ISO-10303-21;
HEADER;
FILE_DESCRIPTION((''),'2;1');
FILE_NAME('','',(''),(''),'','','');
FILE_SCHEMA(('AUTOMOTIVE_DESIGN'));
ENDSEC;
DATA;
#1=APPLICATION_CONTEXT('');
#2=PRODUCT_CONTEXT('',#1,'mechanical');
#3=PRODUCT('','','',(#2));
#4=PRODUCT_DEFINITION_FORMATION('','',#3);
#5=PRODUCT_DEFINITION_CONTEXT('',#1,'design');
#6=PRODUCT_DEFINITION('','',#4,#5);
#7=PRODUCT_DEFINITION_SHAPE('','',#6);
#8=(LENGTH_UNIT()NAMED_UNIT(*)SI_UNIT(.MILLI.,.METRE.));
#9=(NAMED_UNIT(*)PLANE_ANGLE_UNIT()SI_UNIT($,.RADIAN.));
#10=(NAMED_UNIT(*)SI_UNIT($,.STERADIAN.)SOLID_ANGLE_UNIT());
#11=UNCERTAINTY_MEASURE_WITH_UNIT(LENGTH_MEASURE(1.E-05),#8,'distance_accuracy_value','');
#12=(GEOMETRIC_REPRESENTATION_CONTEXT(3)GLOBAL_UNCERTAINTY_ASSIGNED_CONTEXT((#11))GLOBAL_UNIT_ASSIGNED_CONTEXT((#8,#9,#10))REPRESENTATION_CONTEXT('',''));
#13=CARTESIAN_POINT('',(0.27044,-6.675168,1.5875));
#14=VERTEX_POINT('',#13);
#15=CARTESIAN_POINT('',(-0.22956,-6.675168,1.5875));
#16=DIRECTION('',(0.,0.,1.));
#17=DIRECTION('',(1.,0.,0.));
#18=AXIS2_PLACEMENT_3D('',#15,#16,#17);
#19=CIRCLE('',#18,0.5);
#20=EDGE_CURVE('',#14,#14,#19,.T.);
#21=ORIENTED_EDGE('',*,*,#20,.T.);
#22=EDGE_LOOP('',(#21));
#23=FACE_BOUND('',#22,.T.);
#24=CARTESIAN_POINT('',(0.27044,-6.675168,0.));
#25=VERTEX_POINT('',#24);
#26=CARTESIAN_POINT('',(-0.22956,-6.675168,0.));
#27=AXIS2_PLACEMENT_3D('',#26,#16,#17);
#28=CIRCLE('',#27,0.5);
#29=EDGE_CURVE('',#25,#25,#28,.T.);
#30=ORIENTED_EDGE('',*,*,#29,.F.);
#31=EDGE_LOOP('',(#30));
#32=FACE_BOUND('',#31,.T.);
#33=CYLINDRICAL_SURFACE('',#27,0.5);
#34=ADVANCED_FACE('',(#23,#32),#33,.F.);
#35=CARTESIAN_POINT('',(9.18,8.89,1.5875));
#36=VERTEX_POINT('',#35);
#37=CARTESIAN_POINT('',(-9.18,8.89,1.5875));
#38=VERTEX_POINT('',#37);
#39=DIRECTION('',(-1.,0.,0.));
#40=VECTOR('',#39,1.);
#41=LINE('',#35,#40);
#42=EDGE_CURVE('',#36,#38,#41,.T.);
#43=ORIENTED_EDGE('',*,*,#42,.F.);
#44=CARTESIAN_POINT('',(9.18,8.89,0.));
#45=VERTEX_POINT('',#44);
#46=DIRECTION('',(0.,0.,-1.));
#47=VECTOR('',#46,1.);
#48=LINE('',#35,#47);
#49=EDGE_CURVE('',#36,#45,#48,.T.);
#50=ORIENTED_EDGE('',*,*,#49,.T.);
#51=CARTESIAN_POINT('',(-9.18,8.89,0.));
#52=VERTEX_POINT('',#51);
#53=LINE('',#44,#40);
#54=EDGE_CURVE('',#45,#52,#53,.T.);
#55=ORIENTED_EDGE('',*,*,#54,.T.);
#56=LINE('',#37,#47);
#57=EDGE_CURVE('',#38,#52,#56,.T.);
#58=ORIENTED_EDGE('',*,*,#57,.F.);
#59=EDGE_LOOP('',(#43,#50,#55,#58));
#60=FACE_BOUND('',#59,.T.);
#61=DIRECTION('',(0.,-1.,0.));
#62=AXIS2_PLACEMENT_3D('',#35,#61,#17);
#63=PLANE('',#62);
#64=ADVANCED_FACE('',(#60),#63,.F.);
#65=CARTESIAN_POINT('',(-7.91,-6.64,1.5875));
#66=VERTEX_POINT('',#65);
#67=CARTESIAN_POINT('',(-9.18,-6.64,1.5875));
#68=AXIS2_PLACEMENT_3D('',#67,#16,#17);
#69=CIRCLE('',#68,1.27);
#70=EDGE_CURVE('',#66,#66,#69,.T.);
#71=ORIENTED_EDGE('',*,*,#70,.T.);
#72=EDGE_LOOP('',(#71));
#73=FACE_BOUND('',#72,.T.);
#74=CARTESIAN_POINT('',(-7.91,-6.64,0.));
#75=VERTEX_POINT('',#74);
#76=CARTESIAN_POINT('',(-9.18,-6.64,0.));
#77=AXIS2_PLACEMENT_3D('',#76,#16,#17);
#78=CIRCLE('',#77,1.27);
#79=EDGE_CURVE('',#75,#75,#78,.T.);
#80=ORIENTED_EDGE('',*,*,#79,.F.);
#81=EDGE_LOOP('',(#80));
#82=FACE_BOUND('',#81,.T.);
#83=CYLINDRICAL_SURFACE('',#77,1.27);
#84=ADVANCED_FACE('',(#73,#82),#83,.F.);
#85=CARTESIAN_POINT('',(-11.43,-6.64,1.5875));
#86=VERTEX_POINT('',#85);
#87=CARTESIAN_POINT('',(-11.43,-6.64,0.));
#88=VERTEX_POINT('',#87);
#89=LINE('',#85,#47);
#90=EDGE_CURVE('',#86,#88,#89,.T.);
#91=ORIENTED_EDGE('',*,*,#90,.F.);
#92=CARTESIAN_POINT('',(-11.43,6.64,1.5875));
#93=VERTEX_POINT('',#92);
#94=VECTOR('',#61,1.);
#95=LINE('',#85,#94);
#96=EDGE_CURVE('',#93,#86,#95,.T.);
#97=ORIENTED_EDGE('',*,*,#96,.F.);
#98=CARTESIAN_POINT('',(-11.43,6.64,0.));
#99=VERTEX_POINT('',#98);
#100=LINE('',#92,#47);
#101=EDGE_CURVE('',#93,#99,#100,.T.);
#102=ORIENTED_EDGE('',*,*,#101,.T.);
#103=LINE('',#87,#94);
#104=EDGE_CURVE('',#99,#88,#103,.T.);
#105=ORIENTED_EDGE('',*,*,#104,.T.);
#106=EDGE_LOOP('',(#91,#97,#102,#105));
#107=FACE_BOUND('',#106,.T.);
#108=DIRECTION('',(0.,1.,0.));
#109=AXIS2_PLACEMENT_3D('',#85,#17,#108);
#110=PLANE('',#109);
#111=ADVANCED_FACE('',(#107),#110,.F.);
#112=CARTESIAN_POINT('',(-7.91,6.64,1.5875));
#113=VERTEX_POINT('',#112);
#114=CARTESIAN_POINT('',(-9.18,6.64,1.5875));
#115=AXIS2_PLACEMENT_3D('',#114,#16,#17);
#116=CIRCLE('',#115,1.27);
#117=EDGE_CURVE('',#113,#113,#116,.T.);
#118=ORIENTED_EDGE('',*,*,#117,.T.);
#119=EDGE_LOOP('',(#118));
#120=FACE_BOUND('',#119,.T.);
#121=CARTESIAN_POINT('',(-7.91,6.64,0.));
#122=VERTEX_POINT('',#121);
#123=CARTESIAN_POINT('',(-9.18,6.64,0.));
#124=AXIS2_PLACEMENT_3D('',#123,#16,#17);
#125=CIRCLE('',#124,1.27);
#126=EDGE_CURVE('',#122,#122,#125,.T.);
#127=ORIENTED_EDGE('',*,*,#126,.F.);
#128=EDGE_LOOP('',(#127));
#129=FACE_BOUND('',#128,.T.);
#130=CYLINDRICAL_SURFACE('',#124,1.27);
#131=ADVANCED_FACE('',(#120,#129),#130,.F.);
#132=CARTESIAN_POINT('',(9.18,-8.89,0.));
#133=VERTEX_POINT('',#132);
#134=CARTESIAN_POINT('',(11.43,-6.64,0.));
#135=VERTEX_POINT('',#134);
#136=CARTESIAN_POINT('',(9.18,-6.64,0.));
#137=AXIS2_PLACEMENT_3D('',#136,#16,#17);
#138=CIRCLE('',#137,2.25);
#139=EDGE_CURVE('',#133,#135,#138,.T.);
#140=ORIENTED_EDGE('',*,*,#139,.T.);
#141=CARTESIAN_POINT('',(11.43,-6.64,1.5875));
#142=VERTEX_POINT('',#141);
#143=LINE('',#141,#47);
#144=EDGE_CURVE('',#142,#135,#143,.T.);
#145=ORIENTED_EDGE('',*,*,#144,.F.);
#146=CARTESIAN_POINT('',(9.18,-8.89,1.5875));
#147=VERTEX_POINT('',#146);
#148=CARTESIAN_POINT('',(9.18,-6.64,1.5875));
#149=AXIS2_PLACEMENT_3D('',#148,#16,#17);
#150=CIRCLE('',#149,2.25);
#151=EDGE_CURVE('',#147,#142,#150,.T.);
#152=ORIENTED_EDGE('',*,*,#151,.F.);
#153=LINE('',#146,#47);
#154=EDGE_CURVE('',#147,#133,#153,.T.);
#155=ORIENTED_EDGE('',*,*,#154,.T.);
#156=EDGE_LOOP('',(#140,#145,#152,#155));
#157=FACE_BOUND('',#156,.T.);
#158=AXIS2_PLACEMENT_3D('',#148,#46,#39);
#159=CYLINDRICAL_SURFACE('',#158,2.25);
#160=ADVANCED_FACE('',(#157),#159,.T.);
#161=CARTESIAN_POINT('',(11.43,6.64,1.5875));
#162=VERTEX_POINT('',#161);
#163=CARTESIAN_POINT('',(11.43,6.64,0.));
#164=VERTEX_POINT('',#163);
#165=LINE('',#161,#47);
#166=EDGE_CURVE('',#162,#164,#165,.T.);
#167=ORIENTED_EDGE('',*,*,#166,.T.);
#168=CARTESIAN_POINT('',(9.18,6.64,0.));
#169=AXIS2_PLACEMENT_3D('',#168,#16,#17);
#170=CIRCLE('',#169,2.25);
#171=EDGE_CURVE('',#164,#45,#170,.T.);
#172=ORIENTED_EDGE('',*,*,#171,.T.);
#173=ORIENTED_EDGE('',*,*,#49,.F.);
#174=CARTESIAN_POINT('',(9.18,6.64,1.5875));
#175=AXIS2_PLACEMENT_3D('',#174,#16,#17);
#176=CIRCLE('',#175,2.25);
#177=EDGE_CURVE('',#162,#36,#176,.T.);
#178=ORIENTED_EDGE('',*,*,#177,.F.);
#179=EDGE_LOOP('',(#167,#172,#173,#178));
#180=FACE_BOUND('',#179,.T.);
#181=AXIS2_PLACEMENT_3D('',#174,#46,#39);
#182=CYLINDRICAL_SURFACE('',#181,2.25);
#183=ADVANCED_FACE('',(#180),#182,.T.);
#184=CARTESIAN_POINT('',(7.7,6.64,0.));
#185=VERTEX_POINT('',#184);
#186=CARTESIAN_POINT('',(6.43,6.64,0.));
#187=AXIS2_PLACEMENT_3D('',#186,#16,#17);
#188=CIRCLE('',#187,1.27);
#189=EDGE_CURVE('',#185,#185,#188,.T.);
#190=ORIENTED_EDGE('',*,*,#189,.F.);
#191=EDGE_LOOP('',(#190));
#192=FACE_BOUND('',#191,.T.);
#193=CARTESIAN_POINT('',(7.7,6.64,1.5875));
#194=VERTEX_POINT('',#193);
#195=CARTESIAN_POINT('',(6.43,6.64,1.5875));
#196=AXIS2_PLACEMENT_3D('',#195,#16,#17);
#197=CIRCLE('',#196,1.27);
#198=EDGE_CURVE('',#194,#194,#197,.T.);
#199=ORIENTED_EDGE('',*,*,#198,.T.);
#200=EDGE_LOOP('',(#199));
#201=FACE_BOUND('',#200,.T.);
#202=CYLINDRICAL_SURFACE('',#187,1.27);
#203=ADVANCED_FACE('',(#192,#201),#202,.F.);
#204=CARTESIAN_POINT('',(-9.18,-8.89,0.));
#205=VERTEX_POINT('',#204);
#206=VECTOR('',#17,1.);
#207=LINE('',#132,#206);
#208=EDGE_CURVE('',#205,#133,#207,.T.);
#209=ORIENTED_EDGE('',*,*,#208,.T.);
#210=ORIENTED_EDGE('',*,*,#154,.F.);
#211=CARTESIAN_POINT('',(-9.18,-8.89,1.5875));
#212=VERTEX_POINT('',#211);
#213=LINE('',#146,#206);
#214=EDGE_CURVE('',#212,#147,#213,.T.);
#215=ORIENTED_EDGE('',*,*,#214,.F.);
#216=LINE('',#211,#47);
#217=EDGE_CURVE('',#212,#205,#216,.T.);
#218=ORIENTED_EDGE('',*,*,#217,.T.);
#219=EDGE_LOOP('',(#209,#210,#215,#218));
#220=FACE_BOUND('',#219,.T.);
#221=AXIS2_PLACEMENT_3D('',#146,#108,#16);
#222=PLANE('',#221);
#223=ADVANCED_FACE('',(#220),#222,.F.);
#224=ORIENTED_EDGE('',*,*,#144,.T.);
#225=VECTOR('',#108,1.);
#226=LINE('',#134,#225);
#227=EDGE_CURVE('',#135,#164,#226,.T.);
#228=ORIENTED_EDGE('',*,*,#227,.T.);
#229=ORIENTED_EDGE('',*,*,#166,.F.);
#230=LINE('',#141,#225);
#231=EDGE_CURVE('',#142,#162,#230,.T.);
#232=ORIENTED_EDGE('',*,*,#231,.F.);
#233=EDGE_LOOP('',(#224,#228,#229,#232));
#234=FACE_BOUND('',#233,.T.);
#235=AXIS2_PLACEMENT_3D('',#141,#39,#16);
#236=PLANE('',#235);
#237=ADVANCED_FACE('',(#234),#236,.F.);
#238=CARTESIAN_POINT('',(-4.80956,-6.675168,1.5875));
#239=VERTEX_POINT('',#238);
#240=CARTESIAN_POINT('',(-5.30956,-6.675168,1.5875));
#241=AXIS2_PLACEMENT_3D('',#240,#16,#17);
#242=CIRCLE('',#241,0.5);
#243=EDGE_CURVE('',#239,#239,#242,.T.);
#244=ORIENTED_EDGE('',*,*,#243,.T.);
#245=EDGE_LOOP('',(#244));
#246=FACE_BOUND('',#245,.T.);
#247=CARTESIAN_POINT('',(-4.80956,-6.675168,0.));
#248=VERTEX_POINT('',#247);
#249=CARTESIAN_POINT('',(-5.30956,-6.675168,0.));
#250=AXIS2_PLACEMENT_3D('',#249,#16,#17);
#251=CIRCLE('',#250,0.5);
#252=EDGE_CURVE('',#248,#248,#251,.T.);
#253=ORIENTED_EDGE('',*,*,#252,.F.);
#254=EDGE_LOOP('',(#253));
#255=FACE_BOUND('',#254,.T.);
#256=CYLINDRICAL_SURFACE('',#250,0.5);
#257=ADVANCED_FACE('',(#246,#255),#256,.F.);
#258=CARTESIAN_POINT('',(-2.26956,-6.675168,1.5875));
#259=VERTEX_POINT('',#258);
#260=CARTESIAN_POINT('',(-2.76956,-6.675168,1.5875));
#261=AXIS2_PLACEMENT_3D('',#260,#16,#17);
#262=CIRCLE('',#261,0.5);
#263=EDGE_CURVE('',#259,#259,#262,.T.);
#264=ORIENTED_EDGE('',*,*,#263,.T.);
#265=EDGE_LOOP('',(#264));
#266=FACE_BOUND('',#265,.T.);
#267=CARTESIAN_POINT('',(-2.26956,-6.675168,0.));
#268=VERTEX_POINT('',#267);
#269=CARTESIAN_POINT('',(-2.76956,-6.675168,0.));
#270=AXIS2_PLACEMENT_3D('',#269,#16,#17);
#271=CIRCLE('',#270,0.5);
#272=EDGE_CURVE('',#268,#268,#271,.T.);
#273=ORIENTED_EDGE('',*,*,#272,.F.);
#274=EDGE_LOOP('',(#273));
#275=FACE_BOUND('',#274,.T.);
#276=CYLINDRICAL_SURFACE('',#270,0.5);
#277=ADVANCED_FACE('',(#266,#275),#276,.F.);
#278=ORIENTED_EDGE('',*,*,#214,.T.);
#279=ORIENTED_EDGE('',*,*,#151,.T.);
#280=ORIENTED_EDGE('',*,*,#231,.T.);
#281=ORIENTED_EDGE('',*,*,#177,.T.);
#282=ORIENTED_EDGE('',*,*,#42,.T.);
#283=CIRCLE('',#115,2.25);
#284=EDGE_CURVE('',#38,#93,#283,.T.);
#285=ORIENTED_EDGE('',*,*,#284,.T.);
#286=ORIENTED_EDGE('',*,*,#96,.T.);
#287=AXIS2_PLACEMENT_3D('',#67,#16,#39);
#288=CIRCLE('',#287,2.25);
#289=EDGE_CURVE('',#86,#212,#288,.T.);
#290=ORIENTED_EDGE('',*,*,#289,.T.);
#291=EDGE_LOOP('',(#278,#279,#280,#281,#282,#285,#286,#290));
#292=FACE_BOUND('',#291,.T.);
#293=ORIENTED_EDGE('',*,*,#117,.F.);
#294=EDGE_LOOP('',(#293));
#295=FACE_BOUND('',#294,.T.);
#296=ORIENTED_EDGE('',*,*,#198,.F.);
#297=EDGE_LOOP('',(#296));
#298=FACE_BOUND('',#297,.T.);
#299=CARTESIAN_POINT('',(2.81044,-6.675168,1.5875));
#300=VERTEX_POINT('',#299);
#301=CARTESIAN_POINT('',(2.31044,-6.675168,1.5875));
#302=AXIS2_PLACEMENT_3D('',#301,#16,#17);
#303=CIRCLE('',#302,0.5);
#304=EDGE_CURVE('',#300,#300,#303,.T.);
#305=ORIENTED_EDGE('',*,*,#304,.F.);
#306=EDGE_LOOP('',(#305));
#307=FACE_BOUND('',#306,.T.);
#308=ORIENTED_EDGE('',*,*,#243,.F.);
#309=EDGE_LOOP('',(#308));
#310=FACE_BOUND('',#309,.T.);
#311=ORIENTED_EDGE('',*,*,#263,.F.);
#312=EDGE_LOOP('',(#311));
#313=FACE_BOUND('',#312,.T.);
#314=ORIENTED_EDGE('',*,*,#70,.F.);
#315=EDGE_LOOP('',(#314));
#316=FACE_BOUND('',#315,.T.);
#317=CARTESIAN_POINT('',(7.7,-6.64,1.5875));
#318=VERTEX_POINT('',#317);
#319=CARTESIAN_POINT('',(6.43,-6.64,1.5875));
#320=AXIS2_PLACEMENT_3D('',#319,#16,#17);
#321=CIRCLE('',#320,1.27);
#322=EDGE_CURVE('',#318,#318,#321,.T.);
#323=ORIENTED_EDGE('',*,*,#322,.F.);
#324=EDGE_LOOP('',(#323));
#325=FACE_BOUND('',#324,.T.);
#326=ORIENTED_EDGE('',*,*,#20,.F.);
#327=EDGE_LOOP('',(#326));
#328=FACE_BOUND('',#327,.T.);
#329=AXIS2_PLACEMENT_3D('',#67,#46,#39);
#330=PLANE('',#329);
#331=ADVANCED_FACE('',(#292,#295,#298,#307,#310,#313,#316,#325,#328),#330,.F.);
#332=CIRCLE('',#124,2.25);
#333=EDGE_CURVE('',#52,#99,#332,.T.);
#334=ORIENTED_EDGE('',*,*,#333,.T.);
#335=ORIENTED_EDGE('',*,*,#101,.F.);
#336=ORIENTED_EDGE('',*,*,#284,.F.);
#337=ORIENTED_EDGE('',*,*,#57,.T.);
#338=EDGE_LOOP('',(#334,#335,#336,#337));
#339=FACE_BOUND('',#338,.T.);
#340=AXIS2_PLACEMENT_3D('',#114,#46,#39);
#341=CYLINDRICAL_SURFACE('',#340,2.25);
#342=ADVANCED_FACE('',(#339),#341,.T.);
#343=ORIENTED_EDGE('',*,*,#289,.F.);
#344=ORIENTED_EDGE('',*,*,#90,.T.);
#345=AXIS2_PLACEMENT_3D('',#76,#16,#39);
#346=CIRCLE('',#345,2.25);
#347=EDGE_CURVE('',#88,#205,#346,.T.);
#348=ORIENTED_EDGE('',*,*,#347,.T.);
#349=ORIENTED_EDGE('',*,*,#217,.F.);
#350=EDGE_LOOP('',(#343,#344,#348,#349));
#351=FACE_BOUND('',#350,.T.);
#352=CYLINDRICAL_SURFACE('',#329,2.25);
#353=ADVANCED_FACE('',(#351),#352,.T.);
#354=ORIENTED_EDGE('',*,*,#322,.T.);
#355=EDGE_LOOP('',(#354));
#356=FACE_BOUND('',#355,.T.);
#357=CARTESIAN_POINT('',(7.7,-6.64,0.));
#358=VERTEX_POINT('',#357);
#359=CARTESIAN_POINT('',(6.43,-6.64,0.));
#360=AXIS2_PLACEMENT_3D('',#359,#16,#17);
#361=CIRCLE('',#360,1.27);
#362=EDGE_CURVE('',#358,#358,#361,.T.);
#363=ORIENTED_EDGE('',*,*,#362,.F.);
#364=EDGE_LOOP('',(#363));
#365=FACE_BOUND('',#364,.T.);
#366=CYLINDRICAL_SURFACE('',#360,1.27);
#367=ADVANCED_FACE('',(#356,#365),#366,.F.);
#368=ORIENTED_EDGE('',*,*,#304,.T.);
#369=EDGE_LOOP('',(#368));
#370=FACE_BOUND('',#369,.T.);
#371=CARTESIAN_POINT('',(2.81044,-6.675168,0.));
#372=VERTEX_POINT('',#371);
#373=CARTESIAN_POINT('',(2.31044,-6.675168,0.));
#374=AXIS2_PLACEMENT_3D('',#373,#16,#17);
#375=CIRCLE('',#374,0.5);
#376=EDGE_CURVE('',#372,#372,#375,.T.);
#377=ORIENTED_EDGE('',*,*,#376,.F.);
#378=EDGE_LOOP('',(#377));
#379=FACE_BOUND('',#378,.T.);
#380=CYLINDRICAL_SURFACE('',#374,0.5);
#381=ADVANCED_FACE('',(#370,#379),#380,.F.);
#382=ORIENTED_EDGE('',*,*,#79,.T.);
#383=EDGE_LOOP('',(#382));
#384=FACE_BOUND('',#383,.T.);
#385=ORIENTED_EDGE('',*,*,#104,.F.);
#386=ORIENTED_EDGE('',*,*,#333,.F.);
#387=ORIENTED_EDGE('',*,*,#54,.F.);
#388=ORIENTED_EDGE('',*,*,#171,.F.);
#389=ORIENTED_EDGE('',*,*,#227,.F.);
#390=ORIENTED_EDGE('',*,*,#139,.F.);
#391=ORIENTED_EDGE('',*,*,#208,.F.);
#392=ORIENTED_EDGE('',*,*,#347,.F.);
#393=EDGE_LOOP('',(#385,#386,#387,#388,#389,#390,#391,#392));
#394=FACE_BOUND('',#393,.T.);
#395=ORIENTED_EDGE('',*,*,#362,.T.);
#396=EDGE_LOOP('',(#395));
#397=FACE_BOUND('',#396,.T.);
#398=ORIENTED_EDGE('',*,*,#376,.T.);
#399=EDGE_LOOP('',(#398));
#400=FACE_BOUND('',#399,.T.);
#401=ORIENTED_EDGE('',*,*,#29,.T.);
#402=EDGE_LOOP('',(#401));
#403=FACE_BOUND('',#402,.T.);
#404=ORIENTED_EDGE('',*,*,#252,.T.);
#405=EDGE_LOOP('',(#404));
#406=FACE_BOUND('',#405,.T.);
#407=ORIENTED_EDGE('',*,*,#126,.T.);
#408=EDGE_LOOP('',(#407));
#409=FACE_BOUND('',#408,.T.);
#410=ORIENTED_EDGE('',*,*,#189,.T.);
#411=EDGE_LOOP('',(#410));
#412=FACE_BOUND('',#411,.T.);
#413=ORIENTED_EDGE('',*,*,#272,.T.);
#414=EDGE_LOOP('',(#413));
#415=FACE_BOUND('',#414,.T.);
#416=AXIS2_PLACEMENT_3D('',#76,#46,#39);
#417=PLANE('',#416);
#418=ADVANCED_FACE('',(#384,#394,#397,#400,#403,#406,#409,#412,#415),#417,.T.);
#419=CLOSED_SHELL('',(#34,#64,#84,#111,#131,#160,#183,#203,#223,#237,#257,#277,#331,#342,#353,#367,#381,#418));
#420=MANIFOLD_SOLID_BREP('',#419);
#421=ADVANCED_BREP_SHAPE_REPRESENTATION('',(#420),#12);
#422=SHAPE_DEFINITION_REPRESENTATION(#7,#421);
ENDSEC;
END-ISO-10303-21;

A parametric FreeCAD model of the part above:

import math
import FreeCAD as App
import Part
import Sketcher

doc = App.newDocument("Part")
body = doc.addObject("PartDesign::Body", "Body")

# Sketch on XY plane
sketch1 = body.newObject("Sketcher::SketchObject", "Sketch")
sketch1.AttachmentSupport = (doc.getObject("XY_Plane"), [""])
sketch1.MapMode = "FlatFace"
sketch1.addGeometry([
    Part.LineSegment(App.Vector(-9.2, -8.9, 0), App.Vector(9.2, -8.9, 0)),  # 0
    Part.ArcOfCircle(Part.Circle(App.Vector(9.2, -6.6, 0), App.Vector(0, 0, 1), 2.2), math.radians(-90), math.radians(0)),  # 1
    Part.LineSegment(App.Vector(11.4, -6.6, 0), App.Vector(11.4, 6.6, 0)),  # 2
    Part.ArcOfCircle(Part.Circle(App.Vector(9.2, 6.6, 0), App.Vector(0, 0, 1), 2.2), math.radians(0), math.radians(90)),  # 3
    Part.LineSegment(App.Vector(9.2, 8.9, 0), App.Vector(-9.2, 8.9, 0)),  # 4
    Part.ArcOfCircle(Part.Circle(App.Vector(-9.2, 6.6, 0), App.Vector(0, 0, 1), 2.2), math.radians(90), math.radians(180)),  # 5
    Part.LineSegment(App.Vector(-11.4, 6.6, 0), App.Vector(-11.4, -6.6, 0)),  # 6
    Part.ArcOfCircle(Part.Circle(App.Vector(-9.2, -6.6, 0), App.Vector(0, 0, 1), 2.2), math.radians(180), math.radians(270)),  # 7
], False)
sketch1.addConstraint([
    Sketcher.Constraint("Tangent", 0, 2, 1, 1),
    Sketcher.Constraint("Tangent", 1, 2, 2, 1),
    Sketcher.Constraint("Tangent", 2, 2, 3, 1),
    Sketcher.Constraint("Tangent", 3, 2, 4, 1),
    Sketcher.Constraint("Tangent", 4, 2, 5, 1),
    Sketcher.Constraint("Tangent", 5, 2, 6, 1),
    Sketcher.Constraint("Tangent", 6, 2, 7, 1),
    Sketcher.Constraint("Tangent", 7, 2, 0, 1),
    Sketcher.Constraint("Horizontal", 0),
    Sketcher.Constraint("Vertical", 2),
    Sketcher.Constraint("Horizontal", 4),
    Sketcher.Constraint("Vertical", 6),
    Sketcher.Constraint("Equal", 1, 3),
    Sketcher.Constraint("Equal", 3, 5),
    Sketcher.Constraint("Equal", 5, 7),
    Sketcher.Constraint("Symmetric", 1, 3, 5, 3, -1, 1),
    Sketcher.Constraint("Radius", 1, 2.25),
    Sketcher.Constraint("DistanceX", 0, 1, 0, 2, 18.36),
    Sketcher.Constraint("DistanceY", 2, 1, 2, 2, 13.28),
])
pad1 = body.newObject("PartDesign::Pad", "Pad")
pad1.Profile = sketch1
pad1.Length = 1.5875

# Sketch on XY plane
sketch2 = body.newObject("Sketcher::SketchObject", "Sketch001")
sketch2.AttachmentSupport = (doc.getObject("XY_Plane"), [""])
sketch2.MapMode = "FlatFace"
sketch2.AttachmentOffset = App.Placement(App.Vector(0, 0, 1.5875), App.Rotation())
sketch2.addGeometry([
    Part.Circle(App.Vector(-9.2, 6.6, 0), App.Vector(0, 0, 1), 1.3),  # 0
    Part.Circle(App.Vector(6.4, 6.6, 0), App.Vector(0, 0, 1), 1.3),  # 1
    Part.Circle(App.Vector(6.4, -6.6, 0), App.Vector(0, 0, 1), 1.3),  # 2
    Part.Circle(App.Vector(-9.2, -6.6, 0), App.Vector(0, 0, 1), 1.3),  # 3
    Part.Circle(App.Vector(-5.3, -6.7, 0), App.Vector(0, 0, 1), 0.5),  # 4
    Part.Circle(App.Vector(-2.8, -6.7, 0), App.Vector(0, 0, 1), 0.5),  # 5
    Part.Circle(App.Vector(-0.2, -6.7, 0), App.Vector(0, 0, 1), 0.5),  # 6
    Part.Circle(App.Vector(2.3, -6.7, 0), App.Vector(0, 0, 1), 0.5),  # 7
], False)
sketch2.addConstraint([
    Sketcher.Constraint("Equal", 0, 1),
    Sketcher.Constraint("Equal", 1, 2),
    Sketcher.Constraint("Equal", 2, 3),
    Sketcher.Constraint("Equal", 4, 5),
    Sketcher.Constraint("Equal", 5, 6),
    Sketcher.Constraint("Equal", 6, 7),
    Sketcher.Constraint("Symmetric", 1, 3, 2, 3, -1),
    Sketcher.Constraint("Symmetric", 0, 3, 3, 3, -1),
    Sketcher.Constraint("Horizontal", 0, 3, 1, 3),
    Sketcher.Constraint("Horizontal", 4, 3, 5, 3),
    Sketcher.Constraint("Horizontal", 5, 3, 6, 3),
    Sketcher.Constraint("Horizontal", 6, 3, 7, 3),
    Sketcher.Constraint("Diameter", 4, 1.0),
    Sketcher.Constraint("Diameter", 0, 2.54),
    Sketcher.Constraint("DistanceX", 0, 3, -1, 1, 9.18),
    Sketcher.Constraint("DistanceY", -1, 1, 0, 3, 6.64),
    Sketcher.Constraint("DistanceX", -1, 1, 1, 3, 6.43),
    Sketcher.Constraint("DistanceX", 4, 3, 5, 3, 2.54),
    Sketcher.Constraint("DistanceX", 5, 3, 6, 3, 2.54),
    Sketcher.Constraint("DistanceX", 6, 3, 7, 3, 2.54),
    Sketcher.Constraint("DistanceX", 4, 3, -1, 1, 5.30956),
    Sketcher.Constraint("DistanceY", 4, 3, -1, 1, 6.675168),
])
pocket1 = body.newObject("PartDesign::Pocket", "Pocket")
pocket1.Profile = sketch2
pocket1.Type = "ThroughAll"

doc.recompute()
